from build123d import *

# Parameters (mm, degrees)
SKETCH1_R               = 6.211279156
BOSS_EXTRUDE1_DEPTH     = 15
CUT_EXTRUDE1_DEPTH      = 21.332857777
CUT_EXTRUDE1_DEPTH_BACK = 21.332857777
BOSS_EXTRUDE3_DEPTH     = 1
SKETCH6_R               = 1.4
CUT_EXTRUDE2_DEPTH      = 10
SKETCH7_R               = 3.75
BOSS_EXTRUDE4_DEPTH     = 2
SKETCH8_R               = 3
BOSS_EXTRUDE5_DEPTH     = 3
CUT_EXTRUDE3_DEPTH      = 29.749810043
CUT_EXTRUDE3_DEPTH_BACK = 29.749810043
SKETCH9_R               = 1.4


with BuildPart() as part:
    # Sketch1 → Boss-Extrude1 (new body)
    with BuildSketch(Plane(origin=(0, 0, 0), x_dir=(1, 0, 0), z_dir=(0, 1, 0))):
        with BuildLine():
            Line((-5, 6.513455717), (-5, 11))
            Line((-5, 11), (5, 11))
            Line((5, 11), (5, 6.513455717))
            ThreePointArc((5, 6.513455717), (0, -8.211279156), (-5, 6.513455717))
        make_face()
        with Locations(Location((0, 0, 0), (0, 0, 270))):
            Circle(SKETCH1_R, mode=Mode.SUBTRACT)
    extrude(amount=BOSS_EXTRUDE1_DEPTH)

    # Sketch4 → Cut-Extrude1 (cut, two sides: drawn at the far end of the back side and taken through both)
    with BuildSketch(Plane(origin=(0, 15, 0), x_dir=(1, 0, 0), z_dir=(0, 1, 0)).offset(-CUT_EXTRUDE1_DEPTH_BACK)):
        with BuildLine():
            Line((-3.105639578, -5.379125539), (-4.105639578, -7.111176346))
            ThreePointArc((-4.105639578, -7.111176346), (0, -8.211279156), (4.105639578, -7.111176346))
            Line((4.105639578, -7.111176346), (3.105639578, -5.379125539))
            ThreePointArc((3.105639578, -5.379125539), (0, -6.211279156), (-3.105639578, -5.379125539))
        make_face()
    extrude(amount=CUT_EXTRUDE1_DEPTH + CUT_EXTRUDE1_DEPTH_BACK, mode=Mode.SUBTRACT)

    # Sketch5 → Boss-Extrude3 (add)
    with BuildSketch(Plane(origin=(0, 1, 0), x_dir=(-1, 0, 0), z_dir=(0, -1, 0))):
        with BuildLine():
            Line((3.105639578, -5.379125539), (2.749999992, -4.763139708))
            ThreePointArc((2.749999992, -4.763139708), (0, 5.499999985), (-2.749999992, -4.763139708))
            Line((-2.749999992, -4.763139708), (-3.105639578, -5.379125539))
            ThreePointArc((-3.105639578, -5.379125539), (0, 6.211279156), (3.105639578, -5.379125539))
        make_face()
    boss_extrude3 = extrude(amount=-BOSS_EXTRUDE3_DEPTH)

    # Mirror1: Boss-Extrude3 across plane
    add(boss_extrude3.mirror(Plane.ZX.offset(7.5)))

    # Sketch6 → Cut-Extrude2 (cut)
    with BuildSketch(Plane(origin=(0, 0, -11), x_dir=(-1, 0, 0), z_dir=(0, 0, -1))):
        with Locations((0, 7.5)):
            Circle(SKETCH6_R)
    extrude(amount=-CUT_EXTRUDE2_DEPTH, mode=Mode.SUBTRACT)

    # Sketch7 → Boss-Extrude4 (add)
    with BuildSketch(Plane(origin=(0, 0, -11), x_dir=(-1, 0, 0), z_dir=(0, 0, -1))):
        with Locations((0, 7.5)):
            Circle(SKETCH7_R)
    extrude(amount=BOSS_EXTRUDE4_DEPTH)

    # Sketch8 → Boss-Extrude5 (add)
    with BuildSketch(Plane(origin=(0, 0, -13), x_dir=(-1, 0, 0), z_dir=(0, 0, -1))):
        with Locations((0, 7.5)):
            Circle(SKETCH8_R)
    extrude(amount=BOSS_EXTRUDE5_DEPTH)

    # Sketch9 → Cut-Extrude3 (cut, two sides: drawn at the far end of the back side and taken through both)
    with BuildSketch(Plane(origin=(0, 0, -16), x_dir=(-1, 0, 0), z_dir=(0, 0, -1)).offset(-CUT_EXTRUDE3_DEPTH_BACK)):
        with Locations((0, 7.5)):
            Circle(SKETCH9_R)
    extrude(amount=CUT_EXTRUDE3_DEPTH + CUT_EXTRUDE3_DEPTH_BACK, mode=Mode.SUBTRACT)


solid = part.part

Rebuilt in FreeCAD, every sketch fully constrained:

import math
import FreeCAD as App
import Part
import Sketcher

V = App.Vector
Q = App.Units.Quantity

doc = App.newDocument("Part")
body = doc.addObject("PartDesign::Body", "Body")

# Sketch on XZ plane
sketch1 = body.newObject("Sketcher::SketchObject", "Sketch")
sketch1.AttachmentSupport = (doc.getObject("XZ_Plane"), [""])
sketch1.MapMode = "FlatFace"
sketch1.addGeometry([
    Part.LineSegment(V(-5, -11, 0), V(-5, -6.5, 0)),  # 0
    Part.ArcOfCircle(Part.Circle(V(0, 0, 0), V(0, 0, 1), 8.2), math.radians(-52), math.radians(232)),  # 1
    Part.LineSegment(V(5, -6.5, 0), V(5, -11, 0)),  # 2
    Part.LineSegment(V(5, -11, 0), V(-5, -11, 0)),  # 3
    Part.Circle(V(0, 0, 0), V(0, 0, 1), 6.2),  # 4
], False)
sketch1.addConstraint([
    Sketcher.Constraint("Coincident", 0, 2, 1, 2),
    Sketcher.Constraint("Coincident", 1, 1, 2, 1),
    Sketcher.Constraint("Coincident", 2, 2, 3, 1),
    Sketcher.Constraint("Coincident", 3, 2, 0, 1),
    Sketcher.Constraint("Vertical", 0),
    Sketcher.Constraint("Vertical", 2),
    Sketcher.Constraint("Horizontal", 3),
    Sketcher.Constraint("Coincident", 1, 3, -1, 1),
    Sketcher.Constraint("Coincident", 4, 3, -1, 1),
    Sketcher.Constraint("Horizontal", 0, 2, 1, 1),
    Sketcher.Constraint("DistanceX", 3, 2, 3, 1, Q("10 mm")),
    Sketcher.Constraint("DistanceY", 2, 2, -1, 1, Q("11 mm")),
    Sketcher.Constraint("Diameter", 4, Q("12.422558 mm")),
    Sketcher.Constraint("Radius", 1, Q("8.211279 mm")),
])
pad1 = body.newObject("PartDesign::Pad", "Pad")
pad1.Profile = sketch1
pad1.Length = 15
pad1.Reversed = True

# Sketch on XZ plane
sketch2 = body.newObject("Sketcher::SketchObject", "Sketch001")
sketch2.AttachmentSupport = (doc.getObject("XZ_Plane"), [""])
sketch2.MapMode = "FlatFace"
sketch2.AttachmentOffset = App.Placement(V(0, 0, -15), App.Rotation())
sketch2.addGeometry([
    Part.LineSegment(V(-3.1, 5.4, 0), V(-4.1, 7.1, 0)),
    Part.ArcOfCircle(Part.Circle(V(0, 0, 0), V(0, 0, 1), 8.2), math.radians(60), math.radians(120)),
    Part.LineSegment(V(4.1, 7.1, 0), V(3.1, 5.4, 0)),
    Part.ArcOfCircle(Part.Circle(V(0, 0, 0), V(0, 0, 1), 6.2), math.radians(60), math.radians(120)),
], False)
sketch2.addConstraint([
    Sketcher.Constraint("Coincident", 0, 2, 1, 2),
    Sketcher.Constraint("Coincident", 1, 1, 2, 1),
    Sketcher.Constraint("Coincident", 2, 2, 3, 1),
    Sketcher.Constraint("Coincident", 3, 2, 0, 1),
    Sketcher.Constraint("Coincident", 1, 3, -1, 1),
    Sketcher.Constraint("Coincident", 3, 3, -1, 1),
    Sketcher.Constraint("Horizontal", 0, 2, 1, 1),
    Sketcher.Constraint("Horizontal", 2, 2, 3, 2),
    Sketcher.Constraint("Angle", 0, Q("120 deg")),
    Sketcher.Constraint("Distance", 0, Q("2 mm")),
    Sketcher.Constraint("Radius", 1, Q("8.211279 mm")),
    Sketcher.Constraint("DistanceX", 0, 2, -1, 1, Q("4.10564 mm")),
])
pocket1 = body.newObject("PartDesign::Pocket", "Pocket")
pocket1.Profile = sketch2
pocket1.Type = "ThroughAll"
pocket1.Midplane = True

# Sketch on XZ plane
sketch3 = body.newObject("Sketcher::SketchObject", "Sketch002")
sketch3.AttachmentSupport = (doc.getObject("XZ_Plane"), [""])
sketch3.MapMode = "FlatFace"
sketch3.AttachmentOffset = App.Placement(V(0, 0, -1), App.Rotation())
sketch3.addGeometry([
    Part.LineSegment(V(-2.7, 4.8, 0), V(-3.1, 5.4, 0)),
    Part.ArcOfCircle(Part.Circle(V(0, 0, 0), V(0, 0, 1), 6.2), math.radians(120), math.radians(420)),
    Part.LineSegment(V(3.1, 5.4, 0), V(2.7, 4.8, 0)),
    Part.ArcOfCircle(Part.Circle(V(0, 0, 0), V(0, 0, 1), 5.5), math.radians(120), math.radians(420)),
], False)
sketch3.addConstraint([
    Sketcher.Constraint("Coincident", 0, 2, 1, 1),
    Sketcher.Constraint("Coincident", 1, 2, 2, 1),
    Sketcher.Constraint("Coincident", 2, 2, 3, 2),
    Sketcher.Constraint("Coincident", 3, 1, 0, 1),
    Sketcher.Constraint("Coincident", 1, 3, -1, 1),
    Sketcher.Constraint("Coincident", 3, 3, -1, 1),
    Sketcher.Constraint("Horizontal", 0, 2, 1, 2),
    Sketcher.Constraint("Horizontal", 2, 2, 3, 1),
    Sketcher.Constraint("Radius", 3, Q("5.5 mm")),
    Sketcher.Constraint("Angle", 0, Q("120 deg")),
    Sketcher.Constraint("DistanceX", 3, 1, 2, 2, Q("5.5 mm")),
    Sketcher.Constraint("Radius", 1, Q("6.211279 mm")),
])
pad2 = body.newObject("PartDesign::Pad", "Pad001")
pad2.Profile = sketch3
pad2.Length = 1
pad2.Reversed = True
doc.recompute()

datumplane = body.newObject("PartDesign::Plane", "DatumPlane")
datumplane.AttachmentSupport = (doc.getObject("XZ_Plane"), [""])
datumplane.MapMode = "FlatFace"
datumplane.AttachmentOffset = App.Placement(V(0, 0, -7.5), App.Rotation())
mirrored = body.newObject("PartDesign::Mirrored", "Mirrored")
mirrored.Originals = [pad2]
mirrored.MirrorPlane = (datumplane, [""])
body.Tip = mirrored

# Sketch on XY plane
sketch4 = body.newObject("Sketcher::SketchObject", "Sketch003")
sketch4.AttachmentSupport = (doc.getObject("XY_Plane"), [""])
sketch4.MapMode = "FlatFace"
sketch4.AttachmentOffset = App.Placement(V(0, 0, -11), App.Rotation())
sketch4.addGeometry(Part.Circle(V(0, 7.5, 0), V(0, 0, 1), 1.4), False)
sketch4.addConstraint([
    Sketcher.Constraint("PointOnObject", 0, 3, -2),
    Sketcher.Constraint("Diameter", 0, Q("2.8 mm")),
    Sketcher.Constraint("DistanceY", -1, 1, 0, 3, Q("7.5 mm")),
])
pocket2 = body.newObject("PartDesign::Pocket", "Pocket001")
pocket2.Profile = sketch4
pocket2.Length = 10
pocket2.Reversed = True

# Sketch on XY plane
sketch5 = body.newObject("Sketcher::SketchObject", "Sketch004")
sketch5.AttachmentSupport = (doc.getObject("XY_Plane"), [""])
sketch5.MapMode = "FlatFace"
sketch5.AttachmentOffset = App.Placement(V(0, 0, -11), App.Rotation())
sketch5.addGeometry(Part.Circle(V(0, 7.5, 0), V(0, 0, 1), 3.8), False)
sketch5.addConstraint([
    Sketcher.Constraint("PointOnObject", 0, 3, -2),
    Sketcher.Constraint("Diameter", 0, Q("7.5 mm")),
    Sketcher.Constraint("DistanceY", -1, 1, 0, 3, Q("7.5 mm")),
])
pad3 = body.newObject("PartDesign::Pad", "Pad002")
pad3.Profile = sketch5
pad3.Length = 2
pad3.Reversed = True

# Sketch on XY plane
sketch6 = body.newObject("Sketcher::SketchObject", "Sketch005")
sketch6.AttachmentSupport = (doc.getObject("XY_Plane"), [""])
sketch6.MapMode = "FlatFace"
sketch6.AttachmentOffset = App.Placement(V(0, 0, -13), App.Rotation())
sketch6.addGeometry(Part.Circle(V(0, 7.5, 0), V(0, 0, 1), 3), False)
sketch6.addConstraint([
    Sketcher.Constraint("PointOnObject", 0, 3, -2),
    Sketcher.Constraint("Diameter", 0, Q("6 mm")),
    Sketcher.Constraint("DistanceY", -1, 1, 0, 3, Q("7.5 mm")),
])
pad4 = body.newObject("PartDesign::Pad", "Pad003")
pad4.Profile = sketch6
pad4.Length = 3
pad4.Reversed = True

# Sketch on XY plane
sketch7 = body.newObject("Sketcher::SketchObject", "Sketch006")
sketch7.AttachmentSupport = (doc.getObject("XY_Plane"), [""])
sketch7.MapMode = "FlatFace"
sketch7.AttachmentOffset = App.Placement(V(0, 0, -16), App.Rotation())
sketch7.addGeometry(Part.Circle(V(0, 7.5, 0), V(0, 0, 1), 1.4), False)
sketch7.addConstraint([
    Sketcher.Constraint("PointOnObject", 0, 3, -2),
    Sketcher.Constraint("Diameter", 0, Q("2.8 mm")),
    Sketcher.Constraint("DistanceY", -1, 1, 0, 3, Q("7.5 mm")),
])
pocket3 = body.newObject("PartDesign::Pocket", "Pocket002")
pocket3.Profile = sketch7
pocket3.Type = "ThroughAll"
pocket3.Midplane = True

doc.recompute()
